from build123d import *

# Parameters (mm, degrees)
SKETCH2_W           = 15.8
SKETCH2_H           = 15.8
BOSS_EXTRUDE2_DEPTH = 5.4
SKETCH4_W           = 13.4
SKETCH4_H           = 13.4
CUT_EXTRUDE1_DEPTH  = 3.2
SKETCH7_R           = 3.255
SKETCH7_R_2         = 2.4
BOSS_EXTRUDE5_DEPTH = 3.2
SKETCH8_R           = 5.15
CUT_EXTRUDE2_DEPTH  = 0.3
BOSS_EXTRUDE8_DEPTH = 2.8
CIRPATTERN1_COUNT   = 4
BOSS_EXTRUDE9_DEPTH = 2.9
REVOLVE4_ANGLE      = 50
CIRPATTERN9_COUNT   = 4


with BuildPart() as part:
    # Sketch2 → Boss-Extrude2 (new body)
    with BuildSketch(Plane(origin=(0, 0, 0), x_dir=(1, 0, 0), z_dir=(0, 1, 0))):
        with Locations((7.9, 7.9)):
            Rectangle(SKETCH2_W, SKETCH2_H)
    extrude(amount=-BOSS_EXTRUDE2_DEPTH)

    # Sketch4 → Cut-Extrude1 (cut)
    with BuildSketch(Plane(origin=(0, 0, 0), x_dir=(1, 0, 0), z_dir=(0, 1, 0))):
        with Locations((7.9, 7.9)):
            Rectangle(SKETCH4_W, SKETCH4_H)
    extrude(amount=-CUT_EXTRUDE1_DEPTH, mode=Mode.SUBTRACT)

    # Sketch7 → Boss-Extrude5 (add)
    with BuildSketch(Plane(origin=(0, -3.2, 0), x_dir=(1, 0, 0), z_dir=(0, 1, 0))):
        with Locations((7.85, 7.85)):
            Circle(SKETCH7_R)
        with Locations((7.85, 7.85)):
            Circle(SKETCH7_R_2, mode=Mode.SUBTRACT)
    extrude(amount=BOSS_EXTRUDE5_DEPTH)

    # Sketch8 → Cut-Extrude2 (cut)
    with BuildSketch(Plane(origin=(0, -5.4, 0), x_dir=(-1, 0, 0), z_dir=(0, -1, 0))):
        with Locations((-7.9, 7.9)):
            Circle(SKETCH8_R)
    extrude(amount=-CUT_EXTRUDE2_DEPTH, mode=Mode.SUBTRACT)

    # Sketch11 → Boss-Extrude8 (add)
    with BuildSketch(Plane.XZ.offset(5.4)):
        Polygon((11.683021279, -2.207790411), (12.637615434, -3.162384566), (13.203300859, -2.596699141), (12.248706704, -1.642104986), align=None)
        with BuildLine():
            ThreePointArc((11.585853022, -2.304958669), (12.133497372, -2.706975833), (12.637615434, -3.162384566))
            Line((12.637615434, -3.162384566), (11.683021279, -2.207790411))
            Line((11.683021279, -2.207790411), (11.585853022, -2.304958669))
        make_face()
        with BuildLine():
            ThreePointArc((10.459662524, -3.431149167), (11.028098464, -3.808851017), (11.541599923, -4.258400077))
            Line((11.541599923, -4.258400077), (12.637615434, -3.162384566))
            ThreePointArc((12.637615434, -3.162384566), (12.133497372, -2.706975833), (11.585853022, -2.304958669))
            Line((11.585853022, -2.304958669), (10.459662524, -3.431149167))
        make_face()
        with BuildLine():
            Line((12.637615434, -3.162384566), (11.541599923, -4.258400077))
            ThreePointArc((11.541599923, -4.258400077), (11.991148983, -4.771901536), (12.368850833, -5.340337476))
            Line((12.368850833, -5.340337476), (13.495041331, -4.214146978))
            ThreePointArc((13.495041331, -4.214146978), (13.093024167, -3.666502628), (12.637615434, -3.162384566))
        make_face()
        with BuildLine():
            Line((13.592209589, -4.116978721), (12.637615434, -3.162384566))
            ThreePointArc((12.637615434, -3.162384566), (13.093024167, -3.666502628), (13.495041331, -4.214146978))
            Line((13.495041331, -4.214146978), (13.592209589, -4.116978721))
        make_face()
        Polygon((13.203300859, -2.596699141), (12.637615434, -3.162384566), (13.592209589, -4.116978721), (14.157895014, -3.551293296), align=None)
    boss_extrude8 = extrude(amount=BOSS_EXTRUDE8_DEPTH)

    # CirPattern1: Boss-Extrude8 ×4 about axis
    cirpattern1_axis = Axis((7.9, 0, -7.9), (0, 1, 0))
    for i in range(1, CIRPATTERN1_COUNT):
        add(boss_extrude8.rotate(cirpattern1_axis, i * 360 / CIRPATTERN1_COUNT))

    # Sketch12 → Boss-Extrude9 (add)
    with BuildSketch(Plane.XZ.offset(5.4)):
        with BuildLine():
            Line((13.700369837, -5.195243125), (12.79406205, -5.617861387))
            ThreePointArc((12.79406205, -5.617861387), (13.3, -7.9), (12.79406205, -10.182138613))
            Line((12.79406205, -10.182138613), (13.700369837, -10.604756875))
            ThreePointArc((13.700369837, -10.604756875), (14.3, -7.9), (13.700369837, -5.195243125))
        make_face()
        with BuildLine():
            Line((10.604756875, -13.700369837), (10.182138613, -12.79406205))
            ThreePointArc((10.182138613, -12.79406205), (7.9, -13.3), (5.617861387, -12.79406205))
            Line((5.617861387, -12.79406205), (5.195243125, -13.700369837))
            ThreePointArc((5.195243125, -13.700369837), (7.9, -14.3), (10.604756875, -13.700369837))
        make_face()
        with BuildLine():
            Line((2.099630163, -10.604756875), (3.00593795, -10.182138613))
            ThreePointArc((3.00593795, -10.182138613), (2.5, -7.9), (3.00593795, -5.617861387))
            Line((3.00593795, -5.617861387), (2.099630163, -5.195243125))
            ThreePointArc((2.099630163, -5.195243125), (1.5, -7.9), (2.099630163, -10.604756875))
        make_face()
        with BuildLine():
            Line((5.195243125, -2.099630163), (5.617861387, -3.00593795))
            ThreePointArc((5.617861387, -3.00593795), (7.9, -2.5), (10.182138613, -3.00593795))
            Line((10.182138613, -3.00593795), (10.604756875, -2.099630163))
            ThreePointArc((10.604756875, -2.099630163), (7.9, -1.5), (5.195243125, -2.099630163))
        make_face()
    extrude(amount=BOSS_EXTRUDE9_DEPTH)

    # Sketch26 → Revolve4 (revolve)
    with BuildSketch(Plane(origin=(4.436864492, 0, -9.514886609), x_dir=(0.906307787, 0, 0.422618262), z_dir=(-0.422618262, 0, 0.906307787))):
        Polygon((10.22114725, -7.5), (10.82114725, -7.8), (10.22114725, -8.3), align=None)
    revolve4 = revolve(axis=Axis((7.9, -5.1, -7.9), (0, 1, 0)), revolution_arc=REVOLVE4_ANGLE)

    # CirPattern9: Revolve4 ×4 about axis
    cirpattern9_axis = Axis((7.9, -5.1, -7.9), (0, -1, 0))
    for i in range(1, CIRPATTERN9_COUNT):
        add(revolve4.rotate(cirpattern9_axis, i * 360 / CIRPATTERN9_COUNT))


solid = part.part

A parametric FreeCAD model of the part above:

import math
import FreeCAD as App
import Part
import Sketcher
from FreeCAD import Vector
Q = App.Units.Quantity

doc = App.newDocument("Part")
body = doc.addObject("PartDesign::Body", "Body")

sketch1 = body.newObject("Sketcher::SketchObject", "Sketch")
sketch1.AttachmentSupport = (doc.getObject("XZ_Plane"), [""])
sketch1.MapMode = "FlatFace"
sketch1.addGeometry([
    Part.LineSegment(Vector(0, -16, 0), Vector(0, 0, 0)),
    Part.LineSegment(Vector(0, 0, 0), Vector(16, 0, 0)),
    Part.LineSegment(Vector(16, 0, 0), Vector(16, -16, 0)),
    Part.LineSegment(Vector(16, -16, 0), Vector(0, -16, 0)),
], False)
sketch1.addConstraint([
    Sketcher.Constraint("Coincident", 0, 2, 1, 1),
    Sketcher.Constraint("Coincident", 1, 2, 2, 1),
    Sketcher.Constraint("Coincident", 2, 2, 3, 1),
    Sketcher.Constraint("Coincident", 3, 2, 0, 1),
    Sketcher.Constraint("Vertical", 0),
    Sketcher.Constraint("Horizontal", 1),
    Sketcher.Constraint("Vertical", 2),
    Sketcher.Constraint("Horizontal", 3),
    Sketcher.Constraint("Coincident", 0, 2, -1, 1),
    Sketcher.Constraint("Equal", 3, 0),
    Sketcher.Constraint("DistanceX", 1, 1, 1, 2, 15.8),
])
pad1 = body.newObject("PartDesign::Pad", "Pad")
pad1.Profile = sketch1
pad1.Length = 5.4

sketch2 = body.newObject("Sketcher::SketchObject", "Sketch001")
sketch2.AttachmentSupport = (doc.getObject("XZ_Plane"), [""])
sketch2.MapMode = "FlatFace"
sketch2.addGeometry([
    Part.LineSegment(Vector(1, -15, 0), Vector(1, -1, 0)),
    Part.LineSegment(Vector(1, -1, 0), Vector(15, -1, 0)),
    Part.LineSegment(Vector(15, -1, 0), Vector(15, -15, 0)),
    Part.LineSegment(Vector(15, -15, 0), Vector(1, -15, 0)),
], False)
sketch2.addConstraint([
    Sketcher.Constraint("Coincident", 0, 2, 1, 1),
    Sketcher.Constraint("Coincident", 1, 2, 2, 1),
    Sketcher.Constraint("Coincident", 2, 2, 3, 1),
    Sketcher.Constraint("Coincident", 3, 2, 0, 1),
    Sketcher.Constraint("Vertical", 0),
    Sketcher.Constraint("Horizontal", 1),
    Sketcher.Constraint("Vertical", 2),
    Sketcher.Constraint("Horizontal", 3),
    Sketcher.Constraint("Equal", 3, 0),
    Sketcher.Constraint("DistanceX", 1, 1, 1, 2, 13.4),
    Sketcher.Constraint("DistanceX", -1, 1, 0, 2, 1.2),
    Sketcher.Constraint("DistanceY", 0, 2, -1, 1, 1.2),
])
pocket1 = body.newObject("PartDesign::Pocket", "Pocket")
pocket1.Profile = sketch2
pocket1.Length = 3.2
pocket1.Reversed = True

sketch3 = body.newObject("Sketcher::SketchObject", "Sketch002")
sketch3.AttachmentSupport = (doc.getObject("XZ_Plane"), [""])
sketch3.MapMode = "FlatFace"
sketch3.AttachmentOffset = App.Placement(Vector(0, 0, 3.2), App.Rotation())
sketch3.addGeometry([
    Part.Circle(Vector(7.8, -7.8, 0), Vector(0, 0, 1), 3.3),
    Part.Circle(Vector(7.8, -7.8, 0), Vector(0, 0, 1), 2.4),
], False)
sketch3.addConstraint([
    Sketcher.Constraint("Coincident", 1, 3, 0, 3),
    Sketcher.Constraint("Diameter", 1, 4.8),
    Sketcher.Constraint("Diameter", 0, 6.51),
    Sketcher.Constraint("DistanceX", -1, 1, 0, 3, 7.85),
    Sketcher.Constraint("DistanceY", 0, 3, -1, 1, 7.85),
])
pad2 = body.newObject("PartDesign::Pad", "Pad001")
pad2.Profile = sketch3
pad2.Length = 3.2
pad2.Reversed = True

sketch4 = body.newObject("Sketcher::SketchObject", "Sketch003")
sketch4.AttachmentSupport = (doc.getObject("XZ_Plane"), [""])
sketch4.MapMode = "FlatFace"
sketch4.AttachmentOffset = App.Placement(Vector(0, 0, 5.4), App.Rotation())
sketch4.addGeometry(Part.Circle(Vector(8, -8, 0), Vector(0, 0, 1), 5), False)
sketch4.addConstraint([
    Sketcher.Constraint("Diameter", 0, 10.3),
    Sketcher.Constraint("DistanceX", -1, 1, 0, 3, 7.9),
    Sketcher.Constraint("DistanceY", 0, 3, -1, 1, 7.9),
])
pocket2 = body.newObject("PartDesign::Pocket", "Pocket001")
pocket2.Profile = sketch4
pocket2.Length = 0.3

sketch5 = body.newObject("Sketcher::SketchObject", "Sketch004")
sketch5.AttachmentSupport = (doc.getObject("XZ_Plane"), [""])
sketch5.MapMode = "FlatFace"
sketch5.AttachmentOffset = App.Placement(Vector(0, 0, 5.4), App.Rotation())
sketch5.addGeometry([
    Part.LineSegment(Vector(12.25, -1.64, 0), Vector(11.68, -2.21, 0)),
    Part.LineSegment(Vector(11.68, -2.21, 0), Vector(11.59, -2.3, 0)),
    Part.LineSegment(Vector(11.59, -2.3, 0), Vector(10.46, -3.43, 0)),
    Part.ArcOfCircle(Part.Circle(Vector(7.9, -7.9, 0), Vector(0, 0, 1), 5.15), math.radians(45), math.radians(60.2)),
    Part.ArcOfCircle(Part.Circle(Vector(7.9, -7.9, 0), Vector(0, 0, 1), 5.15), math.radians(29.8), math.radians(45)),
    Part.LineSegment(Vector(12.37, -5.34, 0), Vector(13.5, -4.21, 0)),
    Part.LineSegment(Vector(13.5, -4.21, 0), Vector(13.59, -4.12, 0)),
    Part.LineSegment(Vector(13.59, -4.12, 0), Vector(14.16, -3.55, 0)),
    Part.LineSegment(Vector(14.16, -3.55, 0), Vector(12.25, -1.64, 0)),
], False)
sketch5.addConstraint([
    Sketcher.Constraint("Coincident", 0, 2, 1, 1),
    Sketcher.Constraint("Coincident", 1, 2, 2, 1),
    Sketcher.Constraint("Coincident", 2, 2, 3, 2),
    Sketcher.Constraint("Tangent", 3, 1, 4, 2),
    Sketcher.Constraint("Coincident", 4, 1, 5, 1),
    Sketcher.Constraint("Coincident", 5, 2, 6, 1),
    Sketcher.Constraint("Coincident", 6, 2, 7, 1),
    Sketcher.Constraint("Coincident", 7, 2, 8, 1),
    Sketcher.Constraint("Coincident", 8, 2, 0, 1),
    Sketcher.Constraint("Equal", 3, 4),
    Sketcher.Constraint("Parallel", 0, 1),
    Sketcher.Constraint("Parallel", 1, 2),
    Sketcher.Constraint("Parallel", 2, 5),
    Sketcher.Constraint("Parallel", 5, 6),
    Sketcher.Constraint("Parallel", 6, 7),
    Sketcher.Constraint("Perpendicular", 7, 8),
    Sketcher.Constraint("Equal", 2, 5),
    Sketcher.Constraint("Equal", 1, 6),
    Sketcher.Constraint("Equal", 0, 7),
    Sketcher.Constraint("Angle", 0, Q("-135 deg")),
    Sketcher.Constraint("Radius", 3, 5.15),
    Sketcher.Constraint("Distance", 0, 0.8),
    Sketcher.Constraint("Distance", 8, 2.7),
    Sketcher.Constraint("DistanceX", -1, 1, 3, 3, 7.9),
    Sketcher.Constraint("DistanceY", 3, 3, -1, 1, 7.9),
    Sketcher.Constraint("DistanceX", -1, 1, 3, 1, 11.5416),
    Sketcher.Constraint("DistanceX", -1, 1, 0, 2, 11.683021),
    Sketcher.Constraint("DistanceY", 1, 2, -1, 1, 2.304959),
])
pad3 = body.newObject("PartDesign::Pad", "Pad002")
pad3.Profile = sketch5
pad3.Length = 2.8
doc.recompute()

datumline = body.newObject("PartDesign::Line", "DatumLine")
datumline.Placement = App.Placement(Vector(7.9, 0, -7.9), App.Rotation(Vector(0, 0, 1), Vector(0, 1, 0)))
polarpattern = body.newObject("PartDesign::PolarPattern", "PolarPattern")
polarpattern.Originals = [pad3]
polarpattern.Axis = (datumline, [""])
polarpattern.Angle = 360
polarpattern.Occurrences = 4
body.Tip = polarpattern

sketch6 = body.newObject("Sketcher::SketchObject", "Sketch005")
sketch6.AttachmentSupport = (doc.getObject("XZ_Plane"), [""])
sketch6.MapMode = "FlatFace"
sketch6.AttachmentOffset = App.Placement(Vector(0, 0, 5.4), App.Rotation())
sketch6.addGeometry([
    Part.LineSegment(Vector(13.7, -5.2, 0), Vector(12.8, -5.6, 0)),
    Part.ArcOfCircle(Part.Circle(Vector(7.9, -7.9, 0), Vector(0, 0, 1), 5.4), math.radians(-25), math.radians(25)),
    Part.LineSegment(Vector(12.8, -10.2, 0), Vector(13.7, -10.6, 0)),
    Part.ArcOfCircle(Part.Circle(Vector(7.9, -7.9, 0), Vector(0, 0, 1), 6.4), math.radians(-25), math.radians(25)),
    Part.LineSegment(Vector(10.6, -13.7, 0), Vector(10.2, -12.8, 0)),
    Part.ArcOfCircle(Part.Circle(Vector(7.9, -7.9, 0), Vector(0, 0, 1), 5.4), math.radians(-115), math.radians(-65)),
    Part.LineSegment(Vector(5.6, -12.8, 0), Vector(5.2, -13.7, 0)),
    Part.ArcOfCircle(Part.Circle(Vector(7.9, -7.9, 0), Vector(0, 0, 1), 6.4), math.radians(-115), math.radians(-65)),
    Part.LineSegment(Vector(2.1, -10.6, 0), Vector(3, -10.2, 0)),
    Part.ArcOfCircle(Part.Circle(Vector(7.9, -7.9, 0), Vector(0, 0, 1), 5.4), math.radians(155), math.radians(205)),
    Part.LineSegment(Vector(3, -5.6, 0), Vector(2.1, -5.2, 0)),
    Part.ArcOfCircle(Part.Circle(Vector(7.9, -7.9, 0), Vector(0, 0, 1), 6.4), math.radians(155), math.radians(205)),
    Part.LineSegment(Vector(5.2, -2.1, 0), Vector(5.6, -3, 0)),
    Part.ArcOfCircle(Part.Circle(Vector(7.9, -7.9, 0), Vector(0, 0, 1), 5.4), math.radians(65), math.radians(115)),
    Part.LineSegment(Vector(10.2, -3, 0), Vector(10.6, -2.1, 0)),
    Part.ArcOfCircle(Part.Circle(Vector(7.9, -7.9, 0), Vector(0, 0, 1), 6.4), math.radians(65), math.radians(115)),
], False)
sketch6.addConstraint([
    Sketcher.Constraint("Coincident", 0, 2, 1, 2),
    Sketcher.Constraint("Coincident", 1, 1, 2, 1),
    Sketcher.Constraint("Coincident", 2, 2, 3, 1),
    Sketcher.Constraint("Coincident", 3, 2, 0, 1),
    Sketcher.Constraint("Coincident", 4, 2, 5, 2),
    Sketcher.Constraint("Coincident", 5, 1, 6, 1),
    Sketcher.Constraint("Coincident", 6, 2, 7, 1),
    Sketcher.Constraint("Coincident", 7, 2, 4, 1),
    Sketcher.Constraint("Coincident", 8, 2, 9, 2),
    Sketcher.Constraint("Coincident", 9, 1, 10, 1),
    Sketcher.Constraint("Coincident", 10, 2, 11, 1),
    Sketcher.Constraint("Coincident", 11, 2, 8, 1),
    Sketcher.Constraint("Coincident", 12, 2, 13, 2),
    Sketcher.Constraint("Coincident", 13, 1, 14, 1),
    Sketcher.Constraint("Coincident", 14, 2, 15, 1),
    Sketcher.Constraint("Coincident", 15, 2, 12, 1),
    Sketcher.Constraint("Coincident", 3, 3, 1, 3),
    Sketcher.Constraint("Coincident", 5, 3, 1, 3),
    Sketcher.Constraint("Coincident", 7, 3, 1, 3),
    Sketcher.Constraint("Coincident", 9, 3, 1, 3),
    Sketcher.Constraint("Coincident", 11, 3, 1, 3),
    Sketcher.Constraint("Coincident", 13, 3, 1, 3),
    Sketcher.Constraint("Coincident", 15, 3, 1, 3),
    Sketcher.Constraint("Equal", 1, 5),
    Sketcher.Constraint("Equal", 3, 7),
    Sketcher.Constraint("Equal", 5, 9),
    Sketcher.Constraint("Equal", 7, 11),
    Sketcher.Constraint("Equal", 9, 13),
    Sketcher.Constraint("Equal", 11, 15),
    Sketcher.Constraint("Perpendicular", 0, 4),
    Sketcher.Constraint("Perpendicular", 2, 6),
    Sketcher.Constraint("Perpendicular", 4, 8),
    Sketcher.Constraint("Perpendicular", 6, 10),
    Sketcher.Constraint("Perpendicular", 8, 12),
    Sketcher.Constraint("Perpendicular", 10, 14),
    Sketcher.Constraint("Horizontal", 4, 2, 5, 1),
    Sketcher.Constraint("Horizontal", 6, 2, 7, 2),
    Sketcher.Constraint("Horizontal", 1, 1, 8, 2),
    Sketcher.Constraint("Horizontal", 0, 2, 9, 1),
    Sketcher.Constraint("Horizontal", 12, 2, 13, 1),
    Sketcher.Constraint("Vertical", 0, 2, 1, 1),
    Sketcher.Constraint("Vertical", 5, 1, 12, 2),
    Sketcher.Constraint("Radius", 1, 5.4),
    Sketcher.Constraint("Radius", 3, 6.4),
    Sketcher.Constraint("Angle", 0, Q("-155 deg")),
    Sketcher.Constraint("DistanceX", -1, 1, 1, 3, 7.9),
    Sketcher.Constraint("DistanceY", 1, 3, -1, 1, 7.9),
    Sketcher.Constraint("DistanceY", 0, 2, -1, 1, 5.617861),
    Sketcher.Constraint("DistanceX", -1, 1, 4, 2, 10.182139),
])
pad4 = body.newObject("PartDesign::Pad", "Pad003")
pad4.Profile = sketch6
pad4.Length = 2.9

sketch7 = body.newObject("Sketcher::SketchObject", "Sketch006")
sketch7.Placement = App.Placement(Vector(4.436864, 0, -9.514887), App.Rotation(Vector(0.906307787, 0, 0.422618262), Vector(0, 1, 0), Vector(-0.422618262, 0, 0.906307787), "ZXY"))
sketch7.addGeometry([
    Part.LineSegment(Vector(10.8, -7.8, 0), Vector(10.2, -7.5, 0)),
    Part.LineSegment(Vector(10.2, -7.5, 0), Vector(10.2, -8.3, 0)),
    Part.LineSegment(Vector(10.2, -8.3, 0), Vector(10.8, -7.8, 0)),
], False)
sketch7.addGeometry(Part.LineSegment(Vector(3.8, -8.3, 0), Vector(3.8, -7.5, 0)), True)
sketch7.addConstraint([
    Sketcher.Constraint("Coincident", 0, 2, 1, 1),
    Sketcher.Constraint("Coincident", 1, 2, 2, 1),
    Sketcher.Constraint("Coincident", 2, 2, 0, 1),
    Sketcher.Constraint("Vertical", 1),
    Sketcher.Constraint("Vertical", 3),
    Sketcher.Constraint("Horizontal", 1, 2, 3, 1),
    Sketcher.Constraint("Horizontal", 0, 2, 3, 2),
    Sketcher.Constraint("DistanceY", 1, 2, 1, 1, 0.8),
    Sketcher.Constraint("DistanceX", 3, 1, 2, 2, 7.0),
    Sketcher.Constraint("DistanceY", 0, 2, -1, 1, 7.5),
    Sketcher.Constraint("DistanceY", 2, 2, -1, 1, 7.8),
    Sketcher.Constraint("DistanceX", 0, 2, 2, 2, 0.6),
    Sketcher.Constraint("DistanceX", -1, 1, 0, 2, 10.221147),
])
revolution = body.newObject("PartDesign::Revolution", "Revolution")
revolution.Profile = sketch7
revolution.ReferenceAxis = (sketch7, ["Axis0"])
revolution.Angle = 50
doc.recompute()

datumline2 = body.newObject("PartDesign::Line", "DatumLine001")
datumline2.Placement = App.Placement(Vector(7.9, 0, -7.9), App.Rotation(Vector(0, 0, 1), Vector(0, -1, 0)))
polarpattern2 = body.newObject("PartDesign::PolarPattern", "PolarPattern001")
polarpattern2.Originals = [revolution]
polarpattern2.Axis = (datumline2, [""])
polarpattern2.Angle = 360
polarpattern2.Occurrences = 4
body.Tip = polarpattern2

doc.recompute()
